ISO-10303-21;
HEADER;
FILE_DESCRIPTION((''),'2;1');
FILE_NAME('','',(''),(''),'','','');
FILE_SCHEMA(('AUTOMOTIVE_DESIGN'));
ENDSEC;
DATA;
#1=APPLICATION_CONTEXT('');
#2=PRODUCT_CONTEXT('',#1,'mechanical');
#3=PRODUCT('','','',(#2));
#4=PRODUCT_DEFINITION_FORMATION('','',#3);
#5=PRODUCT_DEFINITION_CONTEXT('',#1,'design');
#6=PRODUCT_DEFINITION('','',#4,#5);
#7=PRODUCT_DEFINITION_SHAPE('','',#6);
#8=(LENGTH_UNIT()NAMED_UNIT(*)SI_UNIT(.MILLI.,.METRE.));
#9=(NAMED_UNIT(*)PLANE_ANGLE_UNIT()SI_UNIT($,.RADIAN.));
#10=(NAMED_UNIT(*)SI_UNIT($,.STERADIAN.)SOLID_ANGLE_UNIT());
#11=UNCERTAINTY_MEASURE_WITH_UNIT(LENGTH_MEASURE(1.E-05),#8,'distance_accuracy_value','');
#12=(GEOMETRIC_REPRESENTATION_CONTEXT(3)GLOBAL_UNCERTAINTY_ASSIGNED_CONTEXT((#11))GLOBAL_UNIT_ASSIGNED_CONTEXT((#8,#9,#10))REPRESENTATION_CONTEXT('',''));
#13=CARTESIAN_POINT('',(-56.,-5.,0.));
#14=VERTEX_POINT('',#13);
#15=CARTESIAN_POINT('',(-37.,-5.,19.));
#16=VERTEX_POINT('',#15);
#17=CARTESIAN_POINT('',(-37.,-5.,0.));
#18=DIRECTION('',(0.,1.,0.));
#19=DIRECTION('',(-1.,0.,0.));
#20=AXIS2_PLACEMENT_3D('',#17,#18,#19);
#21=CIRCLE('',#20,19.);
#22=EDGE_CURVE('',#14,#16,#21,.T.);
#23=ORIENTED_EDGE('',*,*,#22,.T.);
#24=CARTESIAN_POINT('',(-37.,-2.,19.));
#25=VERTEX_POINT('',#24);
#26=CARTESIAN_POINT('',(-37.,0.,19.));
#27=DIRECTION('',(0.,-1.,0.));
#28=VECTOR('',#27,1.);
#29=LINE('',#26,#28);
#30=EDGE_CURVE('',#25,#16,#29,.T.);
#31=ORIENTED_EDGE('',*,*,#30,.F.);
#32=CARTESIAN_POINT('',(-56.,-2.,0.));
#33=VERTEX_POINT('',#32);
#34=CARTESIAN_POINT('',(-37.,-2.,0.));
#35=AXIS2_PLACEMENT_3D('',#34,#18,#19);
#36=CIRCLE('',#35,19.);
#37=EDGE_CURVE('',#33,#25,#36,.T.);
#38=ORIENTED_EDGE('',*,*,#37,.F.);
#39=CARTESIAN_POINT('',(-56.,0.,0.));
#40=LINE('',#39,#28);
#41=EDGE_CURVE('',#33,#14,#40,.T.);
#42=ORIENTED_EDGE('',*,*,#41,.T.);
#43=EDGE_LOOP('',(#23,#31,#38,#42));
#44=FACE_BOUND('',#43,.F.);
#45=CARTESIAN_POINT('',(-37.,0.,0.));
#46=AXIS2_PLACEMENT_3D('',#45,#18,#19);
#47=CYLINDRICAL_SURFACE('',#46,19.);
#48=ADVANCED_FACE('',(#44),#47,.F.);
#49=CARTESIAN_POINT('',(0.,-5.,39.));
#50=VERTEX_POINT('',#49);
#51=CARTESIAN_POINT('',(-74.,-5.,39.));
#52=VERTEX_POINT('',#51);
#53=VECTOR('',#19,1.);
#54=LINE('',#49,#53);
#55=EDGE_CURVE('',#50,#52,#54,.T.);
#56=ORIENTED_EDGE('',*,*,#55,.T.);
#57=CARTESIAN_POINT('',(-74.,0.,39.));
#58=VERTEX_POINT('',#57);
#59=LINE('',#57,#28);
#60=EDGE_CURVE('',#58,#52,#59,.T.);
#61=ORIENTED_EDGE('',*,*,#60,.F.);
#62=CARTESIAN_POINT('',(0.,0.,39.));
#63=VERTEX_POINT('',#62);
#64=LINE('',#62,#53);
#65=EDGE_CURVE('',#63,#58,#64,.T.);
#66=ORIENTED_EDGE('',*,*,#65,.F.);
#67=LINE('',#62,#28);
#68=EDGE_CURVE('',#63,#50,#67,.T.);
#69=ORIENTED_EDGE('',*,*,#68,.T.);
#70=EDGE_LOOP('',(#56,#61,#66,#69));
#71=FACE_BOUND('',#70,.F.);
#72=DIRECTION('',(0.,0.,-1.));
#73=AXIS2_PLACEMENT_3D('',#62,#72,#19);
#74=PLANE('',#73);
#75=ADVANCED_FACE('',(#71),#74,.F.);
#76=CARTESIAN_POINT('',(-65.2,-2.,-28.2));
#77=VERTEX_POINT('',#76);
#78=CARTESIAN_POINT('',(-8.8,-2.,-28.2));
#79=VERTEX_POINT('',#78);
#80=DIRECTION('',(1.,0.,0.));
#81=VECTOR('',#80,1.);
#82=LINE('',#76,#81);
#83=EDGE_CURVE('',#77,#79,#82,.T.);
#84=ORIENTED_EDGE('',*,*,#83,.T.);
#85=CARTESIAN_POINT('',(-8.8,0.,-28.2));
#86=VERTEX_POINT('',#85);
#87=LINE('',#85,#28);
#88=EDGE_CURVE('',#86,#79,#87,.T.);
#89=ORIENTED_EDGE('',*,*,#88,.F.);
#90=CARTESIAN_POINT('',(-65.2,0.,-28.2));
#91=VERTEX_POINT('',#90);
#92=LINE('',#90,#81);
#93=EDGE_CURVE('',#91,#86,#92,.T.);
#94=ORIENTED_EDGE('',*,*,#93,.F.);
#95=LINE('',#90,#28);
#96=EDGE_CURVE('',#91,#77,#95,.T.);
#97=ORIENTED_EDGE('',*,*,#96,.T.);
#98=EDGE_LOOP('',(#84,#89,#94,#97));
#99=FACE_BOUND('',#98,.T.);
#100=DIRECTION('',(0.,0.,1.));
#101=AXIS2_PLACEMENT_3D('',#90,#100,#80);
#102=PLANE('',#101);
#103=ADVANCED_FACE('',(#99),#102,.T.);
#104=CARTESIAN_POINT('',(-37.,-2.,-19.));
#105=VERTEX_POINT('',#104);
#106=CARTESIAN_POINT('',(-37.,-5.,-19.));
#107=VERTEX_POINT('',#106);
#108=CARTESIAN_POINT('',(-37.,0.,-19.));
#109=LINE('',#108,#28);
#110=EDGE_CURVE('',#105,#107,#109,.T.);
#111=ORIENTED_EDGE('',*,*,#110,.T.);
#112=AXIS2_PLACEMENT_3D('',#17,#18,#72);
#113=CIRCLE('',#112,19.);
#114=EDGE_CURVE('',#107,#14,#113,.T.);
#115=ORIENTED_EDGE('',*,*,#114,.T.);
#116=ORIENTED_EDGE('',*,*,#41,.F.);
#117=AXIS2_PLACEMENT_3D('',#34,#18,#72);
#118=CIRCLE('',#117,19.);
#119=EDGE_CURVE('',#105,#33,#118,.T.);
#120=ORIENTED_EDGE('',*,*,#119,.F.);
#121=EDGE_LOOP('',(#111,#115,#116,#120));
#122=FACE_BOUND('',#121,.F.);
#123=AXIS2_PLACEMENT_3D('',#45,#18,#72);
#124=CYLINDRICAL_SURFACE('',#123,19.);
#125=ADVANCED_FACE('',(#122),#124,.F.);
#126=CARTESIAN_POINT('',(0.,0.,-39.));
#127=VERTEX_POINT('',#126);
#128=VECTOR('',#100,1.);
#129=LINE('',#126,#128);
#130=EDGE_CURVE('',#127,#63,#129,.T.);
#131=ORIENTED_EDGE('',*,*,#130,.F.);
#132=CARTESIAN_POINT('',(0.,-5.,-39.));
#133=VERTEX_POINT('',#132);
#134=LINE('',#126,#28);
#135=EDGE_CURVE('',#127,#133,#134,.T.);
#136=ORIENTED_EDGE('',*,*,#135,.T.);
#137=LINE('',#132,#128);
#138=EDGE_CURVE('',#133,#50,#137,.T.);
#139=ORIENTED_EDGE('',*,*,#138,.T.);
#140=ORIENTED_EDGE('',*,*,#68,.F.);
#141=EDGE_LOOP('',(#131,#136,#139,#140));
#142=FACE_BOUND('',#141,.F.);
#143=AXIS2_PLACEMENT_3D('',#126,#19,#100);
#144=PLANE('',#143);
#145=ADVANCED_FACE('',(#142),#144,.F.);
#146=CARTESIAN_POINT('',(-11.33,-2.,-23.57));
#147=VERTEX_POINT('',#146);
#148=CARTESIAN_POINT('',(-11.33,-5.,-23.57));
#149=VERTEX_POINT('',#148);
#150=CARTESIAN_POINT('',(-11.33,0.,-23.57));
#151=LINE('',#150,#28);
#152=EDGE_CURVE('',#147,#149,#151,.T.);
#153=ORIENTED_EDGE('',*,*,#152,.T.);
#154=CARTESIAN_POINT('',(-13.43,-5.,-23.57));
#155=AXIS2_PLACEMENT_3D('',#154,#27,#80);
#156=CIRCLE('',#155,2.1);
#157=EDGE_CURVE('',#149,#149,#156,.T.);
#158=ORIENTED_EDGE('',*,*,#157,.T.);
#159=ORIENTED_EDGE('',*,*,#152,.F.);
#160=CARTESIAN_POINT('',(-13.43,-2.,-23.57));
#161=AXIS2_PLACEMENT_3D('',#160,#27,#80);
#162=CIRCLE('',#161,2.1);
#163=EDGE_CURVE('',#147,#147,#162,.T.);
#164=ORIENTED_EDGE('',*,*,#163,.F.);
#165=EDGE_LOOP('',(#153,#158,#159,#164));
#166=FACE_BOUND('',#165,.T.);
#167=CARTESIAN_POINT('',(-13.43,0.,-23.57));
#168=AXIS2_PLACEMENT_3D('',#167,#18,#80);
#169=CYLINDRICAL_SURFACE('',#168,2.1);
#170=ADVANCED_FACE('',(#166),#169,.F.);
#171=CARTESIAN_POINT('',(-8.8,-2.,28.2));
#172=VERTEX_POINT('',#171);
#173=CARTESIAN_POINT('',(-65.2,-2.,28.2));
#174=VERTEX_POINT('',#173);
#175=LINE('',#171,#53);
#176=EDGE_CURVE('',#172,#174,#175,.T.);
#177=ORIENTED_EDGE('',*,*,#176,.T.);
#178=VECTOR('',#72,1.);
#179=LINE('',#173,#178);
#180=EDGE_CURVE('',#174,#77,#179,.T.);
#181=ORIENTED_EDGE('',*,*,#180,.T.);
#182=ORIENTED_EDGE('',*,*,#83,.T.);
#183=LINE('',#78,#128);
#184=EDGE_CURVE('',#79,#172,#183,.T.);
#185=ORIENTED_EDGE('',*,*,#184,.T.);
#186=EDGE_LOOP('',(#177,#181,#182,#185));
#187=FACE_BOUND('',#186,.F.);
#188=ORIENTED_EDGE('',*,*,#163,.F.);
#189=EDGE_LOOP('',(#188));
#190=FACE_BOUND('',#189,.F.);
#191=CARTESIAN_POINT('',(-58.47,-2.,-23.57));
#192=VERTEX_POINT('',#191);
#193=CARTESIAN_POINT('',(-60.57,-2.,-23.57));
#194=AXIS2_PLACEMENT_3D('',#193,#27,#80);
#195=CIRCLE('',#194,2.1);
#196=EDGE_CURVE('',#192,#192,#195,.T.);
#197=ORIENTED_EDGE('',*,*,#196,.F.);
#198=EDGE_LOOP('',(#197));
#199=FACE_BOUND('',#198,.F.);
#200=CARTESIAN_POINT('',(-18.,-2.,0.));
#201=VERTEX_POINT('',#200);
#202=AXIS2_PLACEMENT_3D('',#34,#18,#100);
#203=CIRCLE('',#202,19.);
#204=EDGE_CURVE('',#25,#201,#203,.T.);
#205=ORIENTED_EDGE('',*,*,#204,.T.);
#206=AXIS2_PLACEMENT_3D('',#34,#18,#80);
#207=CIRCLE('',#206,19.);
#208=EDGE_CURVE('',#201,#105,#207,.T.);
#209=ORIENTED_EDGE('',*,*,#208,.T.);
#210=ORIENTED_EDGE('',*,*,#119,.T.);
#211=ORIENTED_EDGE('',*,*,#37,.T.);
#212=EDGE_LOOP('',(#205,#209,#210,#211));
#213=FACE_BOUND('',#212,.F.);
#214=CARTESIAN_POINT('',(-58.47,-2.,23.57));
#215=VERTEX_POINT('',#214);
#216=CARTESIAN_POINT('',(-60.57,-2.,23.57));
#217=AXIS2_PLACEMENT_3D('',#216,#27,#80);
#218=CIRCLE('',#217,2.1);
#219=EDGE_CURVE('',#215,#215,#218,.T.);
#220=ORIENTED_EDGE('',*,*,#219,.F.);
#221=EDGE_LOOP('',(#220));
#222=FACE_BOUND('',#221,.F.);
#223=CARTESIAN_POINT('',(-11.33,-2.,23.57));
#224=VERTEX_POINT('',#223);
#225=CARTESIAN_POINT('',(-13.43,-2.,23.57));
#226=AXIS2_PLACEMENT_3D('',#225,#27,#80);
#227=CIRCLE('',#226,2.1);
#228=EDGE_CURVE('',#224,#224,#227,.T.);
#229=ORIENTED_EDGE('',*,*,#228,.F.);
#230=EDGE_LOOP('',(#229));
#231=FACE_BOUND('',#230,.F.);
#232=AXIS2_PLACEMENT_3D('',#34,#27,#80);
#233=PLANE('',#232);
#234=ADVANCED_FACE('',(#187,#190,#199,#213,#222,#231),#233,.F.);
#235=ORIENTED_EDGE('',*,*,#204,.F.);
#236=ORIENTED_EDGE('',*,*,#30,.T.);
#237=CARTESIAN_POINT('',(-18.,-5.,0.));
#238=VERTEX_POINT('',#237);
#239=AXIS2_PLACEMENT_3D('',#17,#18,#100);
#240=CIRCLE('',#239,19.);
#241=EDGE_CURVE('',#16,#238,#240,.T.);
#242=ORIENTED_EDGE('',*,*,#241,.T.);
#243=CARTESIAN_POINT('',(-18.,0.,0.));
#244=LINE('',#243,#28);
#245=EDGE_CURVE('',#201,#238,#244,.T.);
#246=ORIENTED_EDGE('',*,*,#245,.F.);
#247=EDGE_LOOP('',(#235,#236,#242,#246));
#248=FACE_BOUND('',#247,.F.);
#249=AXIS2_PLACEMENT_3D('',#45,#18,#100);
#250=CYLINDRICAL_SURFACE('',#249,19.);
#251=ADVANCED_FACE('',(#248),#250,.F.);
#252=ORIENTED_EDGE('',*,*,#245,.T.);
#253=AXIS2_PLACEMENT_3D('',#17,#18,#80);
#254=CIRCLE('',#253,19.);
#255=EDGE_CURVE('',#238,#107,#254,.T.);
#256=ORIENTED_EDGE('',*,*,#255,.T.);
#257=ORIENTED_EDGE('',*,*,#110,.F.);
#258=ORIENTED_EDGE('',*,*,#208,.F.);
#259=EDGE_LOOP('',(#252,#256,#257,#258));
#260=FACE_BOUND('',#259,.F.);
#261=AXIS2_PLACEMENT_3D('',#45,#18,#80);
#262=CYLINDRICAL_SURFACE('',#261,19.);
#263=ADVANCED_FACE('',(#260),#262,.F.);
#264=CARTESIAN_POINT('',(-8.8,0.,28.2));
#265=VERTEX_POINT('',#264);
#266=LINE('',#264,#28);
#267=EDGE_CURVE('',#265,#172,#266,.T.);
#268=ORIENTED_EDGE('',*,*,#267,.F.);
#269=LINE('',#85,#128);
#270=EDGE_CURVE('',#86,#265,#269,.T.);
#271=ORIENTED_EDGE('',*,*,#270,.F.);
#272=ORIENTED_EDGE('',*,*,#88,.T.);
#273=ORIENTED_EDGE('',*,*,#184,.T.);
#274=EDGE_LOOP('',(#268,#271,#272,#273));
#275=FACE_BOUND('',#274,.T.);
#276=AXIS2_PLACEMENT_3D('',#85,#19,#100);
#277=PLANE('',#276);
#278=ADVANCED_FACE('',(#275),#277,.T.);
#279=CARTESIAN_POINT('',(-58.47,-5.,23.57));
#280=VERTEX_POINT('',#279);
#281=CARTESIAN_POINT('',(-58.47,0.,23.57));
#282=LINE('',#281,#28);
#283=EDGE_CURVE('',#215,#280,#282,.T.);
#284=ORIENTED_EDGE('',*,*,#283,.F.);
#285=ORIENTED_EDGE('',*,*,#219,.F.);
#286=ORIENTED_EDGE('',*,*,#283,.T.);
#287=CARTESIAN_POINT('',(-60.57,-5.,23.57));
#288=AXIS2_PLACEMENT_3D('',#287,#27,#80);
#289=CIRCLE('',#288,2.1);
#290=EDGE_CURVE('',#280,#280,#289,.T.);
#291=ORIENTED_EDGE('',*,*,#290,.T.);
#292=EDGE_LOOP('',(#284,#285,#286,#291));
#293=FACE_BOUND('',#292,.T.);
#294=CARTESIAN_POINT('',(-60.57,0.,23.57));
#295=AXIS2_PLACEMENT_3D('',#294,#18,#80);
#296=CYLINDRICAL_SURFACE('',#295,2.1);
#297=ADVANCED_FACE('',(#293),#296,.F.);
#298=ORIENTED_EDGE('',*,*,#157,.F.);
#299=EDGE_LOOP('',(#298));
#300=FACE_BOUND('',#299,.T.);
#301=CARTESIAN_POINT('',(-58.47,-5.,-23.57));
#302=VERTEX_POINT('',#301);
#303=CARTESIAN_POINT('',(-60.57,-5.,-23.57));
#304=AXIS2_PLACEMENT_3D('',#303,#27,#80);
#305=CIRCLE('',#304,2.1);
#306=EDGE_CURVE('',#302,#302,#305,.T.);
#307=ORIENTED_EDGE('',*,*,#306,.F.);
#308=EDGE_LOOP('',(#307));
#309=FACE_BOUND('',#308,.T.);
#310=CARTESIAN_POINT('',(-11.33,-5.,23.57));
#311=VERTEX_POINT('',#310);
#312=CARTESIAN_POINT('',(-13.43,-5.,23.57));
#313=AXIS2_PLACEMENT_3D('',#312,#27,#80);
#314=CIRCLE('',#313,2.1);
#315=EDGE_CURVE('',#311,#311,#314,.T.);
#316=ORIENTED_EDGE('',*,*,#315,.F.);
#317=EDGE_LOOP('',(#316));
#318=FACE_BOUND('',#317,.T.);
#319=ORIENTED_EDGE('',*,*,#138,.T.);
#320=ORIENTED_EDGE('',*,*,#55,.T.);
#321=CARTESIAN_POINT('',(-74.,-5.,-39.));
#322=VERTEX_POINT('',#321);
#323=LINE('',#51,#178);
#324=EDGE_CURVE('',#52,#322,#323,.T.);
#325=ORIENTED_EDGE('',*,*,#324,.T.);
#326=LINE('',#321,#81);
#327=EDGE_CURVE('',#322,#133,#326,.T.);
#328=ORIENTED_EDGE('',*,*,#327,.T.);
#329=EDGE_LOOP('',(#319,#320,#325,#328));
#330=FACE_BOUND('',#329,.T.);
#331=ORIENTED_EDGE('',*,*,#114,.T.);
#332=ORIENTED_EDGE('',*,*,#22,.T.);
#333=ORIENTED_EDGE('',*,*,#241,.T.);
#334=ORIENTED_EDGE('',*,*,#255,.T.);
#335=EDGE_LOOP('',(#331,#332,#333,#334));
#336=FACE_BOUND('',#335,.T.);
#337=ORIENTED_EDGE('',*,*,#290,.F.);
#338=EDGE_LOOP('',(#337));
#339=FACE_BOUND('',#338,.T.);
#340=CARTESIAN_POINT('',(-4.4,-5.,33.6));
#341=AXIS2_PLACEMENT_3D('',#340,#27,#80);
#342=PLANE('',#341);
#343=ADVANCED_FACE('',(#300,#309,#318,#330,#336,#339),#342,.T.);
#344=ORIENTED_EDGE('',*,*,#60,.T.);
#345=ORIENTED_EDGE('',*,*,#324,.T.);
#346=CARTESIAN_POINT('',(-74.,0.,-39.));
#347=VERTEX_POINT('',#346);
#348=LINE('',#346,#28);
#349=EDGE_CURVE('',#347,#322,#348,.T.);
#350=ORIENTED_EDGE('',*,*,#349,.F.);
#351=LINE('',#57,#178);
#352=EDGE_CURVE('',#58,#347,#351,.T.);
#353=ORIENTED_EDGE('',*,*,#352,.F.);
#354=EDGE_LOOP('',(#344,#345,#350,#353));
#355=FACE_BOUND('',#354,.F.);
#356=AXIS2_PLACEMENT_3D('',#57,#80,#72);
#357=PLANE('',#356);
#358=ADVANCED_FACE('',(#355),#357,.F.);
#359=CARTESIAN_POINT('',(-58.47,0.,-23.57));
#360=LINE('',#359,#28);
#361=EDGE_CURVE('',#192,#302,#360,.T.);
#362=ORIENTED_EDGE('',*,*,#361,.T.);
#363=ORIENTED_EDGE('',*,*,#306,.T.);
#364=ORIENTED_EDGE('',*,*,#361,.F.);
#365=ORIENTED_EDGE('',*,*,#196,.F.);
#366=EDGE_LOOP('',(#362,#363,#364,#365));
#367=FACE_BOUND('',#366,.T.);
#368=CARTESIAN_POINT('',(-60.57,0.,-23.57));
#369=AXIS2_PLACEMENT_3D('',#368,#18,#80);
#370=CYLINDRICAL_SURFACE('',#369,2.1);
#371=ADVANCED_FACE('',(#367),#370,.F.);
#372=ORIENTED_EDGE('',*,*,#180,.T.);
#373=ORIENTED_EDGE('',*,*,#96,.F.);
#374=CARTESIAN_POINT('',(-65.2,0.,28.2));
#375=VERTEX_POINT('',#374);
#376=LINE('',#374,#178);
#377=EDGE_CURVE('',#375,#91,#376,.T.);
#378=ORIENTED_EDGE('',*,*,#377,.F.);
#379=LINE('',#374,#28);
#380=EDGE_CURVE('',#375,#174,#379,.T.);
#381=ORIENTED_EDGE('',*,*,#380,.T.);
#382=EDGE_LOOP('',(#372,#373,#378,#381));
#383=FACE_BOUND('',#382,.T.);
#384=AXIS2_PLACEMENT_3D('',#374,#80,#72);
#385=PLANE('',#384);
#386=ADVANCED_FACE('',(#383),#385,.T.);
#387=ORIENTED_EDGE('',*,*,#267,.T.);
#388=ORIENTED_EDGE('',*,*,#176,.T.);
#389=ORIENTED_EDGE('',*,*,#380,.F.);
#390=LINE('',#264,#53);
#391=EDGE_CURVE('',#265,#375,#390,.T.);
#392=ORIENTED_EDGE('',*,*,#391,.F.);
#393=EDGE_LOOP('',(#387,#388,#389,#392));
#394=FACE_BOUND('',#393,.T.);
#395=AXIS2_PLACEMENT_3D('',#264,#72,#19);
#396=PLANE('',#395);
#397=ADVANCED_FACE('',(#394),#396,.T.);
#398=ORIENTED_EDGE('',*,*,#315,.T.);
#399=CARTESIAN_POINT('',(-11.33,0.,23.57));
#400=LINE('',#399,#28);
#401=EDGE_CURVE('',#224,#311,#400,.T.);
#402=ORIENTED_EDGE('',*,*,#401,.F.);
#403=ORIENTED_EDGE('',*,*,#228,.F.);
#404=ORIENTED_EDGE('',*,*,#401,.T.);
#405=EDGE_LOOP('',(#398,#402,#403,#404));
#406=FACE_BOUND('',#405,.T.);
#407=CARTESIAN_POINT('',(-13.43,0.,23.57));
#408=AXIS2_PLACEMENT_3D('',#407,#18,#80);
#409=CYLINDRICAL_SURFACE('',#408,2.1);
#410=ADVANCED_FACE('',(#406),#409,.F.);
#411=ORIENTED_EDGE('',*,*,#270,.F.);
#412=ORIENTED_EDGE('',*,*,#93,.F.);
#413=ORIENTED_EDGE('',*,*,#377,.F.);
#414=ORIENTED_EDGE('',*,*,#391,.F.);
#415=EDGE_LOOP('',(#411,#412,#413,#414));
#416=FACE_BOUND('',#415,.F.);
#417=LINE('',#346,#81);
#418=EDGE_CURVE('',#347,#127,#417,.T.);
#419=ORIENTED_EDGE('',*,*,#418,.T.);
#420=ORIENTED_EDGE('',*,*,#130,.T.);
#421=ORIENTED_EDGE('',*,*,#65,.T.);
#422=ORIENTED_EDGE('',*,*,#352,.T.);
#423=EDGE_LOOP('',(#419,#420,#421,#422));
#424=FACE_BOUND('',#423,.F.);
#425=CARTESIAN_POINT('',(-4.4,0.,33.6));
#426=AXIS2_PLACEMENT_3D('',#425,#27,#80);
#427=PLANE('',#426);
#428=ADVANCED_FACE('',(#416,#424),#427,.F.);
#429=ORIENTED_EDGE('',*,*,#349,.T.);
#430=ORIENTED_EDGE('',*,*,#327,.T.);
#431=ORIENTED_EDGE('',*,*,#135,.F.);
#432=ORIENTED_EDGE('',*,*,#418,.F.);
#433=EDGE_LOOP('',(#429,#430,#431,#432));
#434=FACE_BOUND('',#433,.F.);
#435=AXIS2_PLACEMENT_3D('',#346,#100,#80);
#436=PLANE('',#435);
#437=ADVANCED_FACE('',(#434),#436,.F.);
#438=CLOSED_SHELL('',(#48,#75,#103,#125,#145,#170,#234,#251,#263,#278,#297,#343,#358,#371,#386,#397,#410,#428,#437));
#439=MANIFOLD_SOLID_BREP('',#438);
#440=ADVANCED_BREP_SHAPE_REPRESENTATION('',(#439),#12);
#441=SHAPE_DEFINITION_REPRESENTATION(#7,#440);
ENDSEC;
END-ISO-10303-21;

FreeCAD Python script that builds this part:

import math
import FreeCAD as App
import Part
import Sketcher
Q = App.Units.Quantity


def add_polygon(sketch, points):
    """Adds a closed chain of lines whose ends are joined by coincident constraints."""
    first, n = sketch.GeometryCount, len(points)
    for a, b in zip(points, points[1:] + points[:1]):
        sketch.addGeometry(Part.LineSegment(App.Vector(*a, 0), App.Vector(*b, 0)), False)
    for i in range(n):
        sketch.addConstraint(Sketcher.Constraint("Coincident", first + i, 2, first + (i + 1) % n, 1))

doc = App.newDocument("Part")
body = doc.addObject("PartDesign::Body", "Body")

sketch1 = doc.addObject("Sketcher::SketchObject", "Sketch")
body.addObject(sketch1)
sketch1.AttachmentSupport = (doc.XZ_Plane, [""])
sketch1.MapMode = "FlatFace"
add_polygon(sketch1, [(-74, 39), (-74, -39), (0, -39), (0, 39)])
sketch1.addGeometry(Part.Circle(App.Vector(-60.6, -23.6, 0), App.Vector(0, 0, 1), 2.1), False)
sketch1.addGeometry(Part.ArcOfCircle(Part.Circle(App.Vector(-37, 0, 0), App.Vector(0, 0, 1), 19), math.radians(90), math.radians(180)), False)
sketch1.addGeometry(Part.ArcOfCircle(Part.Circle(App.Vector(-37, 0, 0), App.Vector(0, 0, 1), 19), math.radians(0), math.radians(90)), False)
sketch1.addGeometry(Part.ArcOfCircle(Part.Circle(App.Vector(-37, 0, 0), App.Vector(0, 0, 1), 19), math.radians(-90), math.radians(0)), False)
sketch1.addGeometry(Part.ArcOfCircle(Part.Circle(App.Vector(-37, 0, 0), App.Vector(0, 0, 1), 19), math.radians(180), math.radians(270)), False)
sketch1.addGeometry(Part.Circle(App.Vector(-13.4, -23.6, 0), App.Vector(0, 0, 1), 2.1), False)
sketch1.addGeometry(Part.Circle(App.Vector(-60.6, 23.6, 0), App.Vector(0, 0, 1), 2.1), False)
sketch1.addGeometry(Part.Circle(App.Vector(-13.4, 23.6, 0), App.Vector(0, 0, 1), 2.1), False)
sketch1.addConstraint([
    Sketcher.Constraint("Tangent", 5, 1, 6, 2),
    Sketcher.Constraint("Tangent", 6, 1, 7, 2),
    Sketcher.Constraint("Tangent", 7, 1, 8, 2),
    Sketcher.Constraint("Tangent", 8, 1, 5, 2),
    Sketcher.Constraint("Vertical", 0),
    Sketcher.Constraint("Horizontal", 1),
    Sketcher.Constraint("Vertical", 2),
    Sketcher.Constraint("Horizontal", 3),
    Sketcher.Constraint("Equal", 5, 6),
    Sketcher.Constraint("Equal", 4, 9),
    Sketcher.Constraint("Equal", 9, 10),
    Sketcher.Constraint("Equal", 10, 11),
    Sketcher.Constraint("Symmetric", 1, 2, 2, 2, -1, 1),
    Sketcher.Constraint("Symmetric", 4, 3, 10, 3, -1),
    Sketcher.Constraint("Symmetric", 9, 3, 11, 3, -1),
    Sketcher.Constraint("Symmetric", 5, 1, 7, 1, -1),
    Sketcher.Constraint("PointOnObject", 6, 1, -1),
    Sketcher.Constraint("PointOnObject", 8, 1, -1),
    Sketcher.Constraint("Horizontal", 4, 3, 9, 3),
    Sketcher.Constraint("Vertical", 8, 3, 5, 1),
    Sketcher.Constraint("Radius", 5, Q("19 mm")),
    Sketcher.Constraint("Diameter", 4, Q("4.2 mm")),
    Sketcher.Constraint("DistanceX", 1, 1, 1, 2, Q("74 mm")),
    Sketcher.Constraint("DistanceY", 0, 2, 0, 1, Q("78 mm")),
    Sketcher.Constraint("DistanceX", 5, 3, -1, 1, Q("37 mm")),
    Sketcher.Constraint("DistanceX", 4, 3, -1, 1, Q("60.57 mm")),
    Sketcher.Constraint("DistanceY", 4, 3, -1, 1, Q("23.57 mm")),
    Sketcher.Constraint("DistanceX", 9, 3, -1, 1, Q("13.43 mm")),
])
pad1 = doc.addObject("PartDesign::Pad", "Pad")
body.addObject(pad1)
pad1.Profile = sketch1
pad1.Length = 5

sketch2 = doc.addObject("Sketcher::SketchObject", "Sketch001")
body.addObject(sketch2)
sketch2.AttachmentSupport = (doc.XZ_Plane, [""])
sketch2.MapMode = "FlatFace"
add_polygon(sketch2, [(-8.8, 28.2), (-65.2, 28.2), (-65.2, -28.2), (-8.8, -28.2)])
sketch2.addGeometry(Part.Circle(App.Vector(-60.6, -23.6, 0), App.Vector(0, 0, 1), 2.1), False)
sketch2.addGeometry(Part.ArcOfCircle(Part.Circle(App.Vector(-37, 0, 0), App.Vector(0, 0, 1), 19), math.radians(90), math.radians(180)), False)
sketch2.addGeometry(Part.ArcOfCircle(Part.Circle(App.Vector(-37, 0, 0), App.Vector(0, 0, 1), 19), math.radians(0), math.radians(90)), False)
sketch2.addGeometry(Part.ArcOfCircle(Part.Circle(App.Vector(-37, 0, 0), App.Vector(0, 0, 1), 19), math.radians(-90), math.radians(0)), False)
sketch2.addGeometry(Part.ArcOfCircle(Part.Circle(App.Vector(-37, 0, 0), App.Vector(0, 0, 1), 19), math.radians(180), math.radians(270)), False)
sketch2.addGeometry(Part.Circle(App.Vector(-13.4, -23.6, 0), App.Vector(0, 0, 1), 2.1), False)
sketch2.addGeometry(Part.Circle(App.Vector(-60.6, 23.6, 0), App.Vector(0, 0, 1), 2.1), False)
sketch2.addGeometry(Part.Circle(App.Vector(-13.4, 23.6, 0), App.Vector(0, 0, 1), 2.1), False)
sketch2.addConstraint([
    Sketcher.Constraint("Tangent", 5, 1, 6, 2),
    Sketcher.Constraint("Tangent", 6, 1, 7, 2),
    Sketcher.Constraint("Tangent", 7, 1, 8, 2),
    Sketcher.Constraint("Tangent", 8, 1, 5, 2),
    Sketcher.Constraint("Horizontal", 0),
    Sketcher.Constraint("Vertical", 1),
    Sketcher.Constraint("Horizontal", 2),
    Sketcher.Constraint("Vertical", 3),
    Sketcher.Constraint("Equal", 5, 6),
    Sketcher.Constraint("Equal", 4, 9),
    Sketcher.Constraint("Equal", 9, 10),
    Sketcher.Constraint("Equal", 10, 11),
    Sketcher.Constraint("Symmetric", 4, 3, 10, 3, -1),
    Sketcher.Constraint("Symmetric", 9, 3, 11, 3, -1),
    Sketcher.Constraint("Symmetric", 5, 1, 7, 1, -1),
    Sketcher.Constraint("PointOnObject", 6, 1, -1),
    Sketcher.Constraint("PointOnObject", 8, 1, -1),
    Sketcher.Constraint("Horizontal", 4, 3, 9, 3),
    Sketcher.Constraint("Vertical", 8, 3, 5, 1),
    Sketcher.Constraint("Equal", 2, 1),
    Sketcher.Constraint("Radius", 5, Q("19 mm")),
    Sketcher.Constraint("Diameter", 4, Q("4.2 mm")),
    Sketcher.Constraint("DistanceX", 0, 2, 0, 1, Q("56.4 mm")),
    Sketcher.Constraint("DistanceX", 5, 3, -1, 1, Q("37 mm")),
    Sketcher.Constraint("DistanceX", 0, 2, -1, 1, Q("65.2 mm")),
    Sketcher.Constraint("DistanceY", -1, 1, 0, 2, Q("28.2 mm")),
    Sketcher.Constraint("DistanceX", 4, 3, -1, 1, Q("60.57 mm")),
    Sketcher.Constraint("DistanceY", 4, 3, -1, 1, Q("23.57 mm")),
    Sketcher.Constraint("DistanceX", 9, 3, -1, 1, Q("13.43 mm")),
])
pocket1 = doc.addObject("PartDesign::Pocket", "Pocket")
body.addObject(pocket1)
pocket1.Profile = sketch2
pocket1.Length = 2
pocket1.Reversed = True

doc.recompute()
